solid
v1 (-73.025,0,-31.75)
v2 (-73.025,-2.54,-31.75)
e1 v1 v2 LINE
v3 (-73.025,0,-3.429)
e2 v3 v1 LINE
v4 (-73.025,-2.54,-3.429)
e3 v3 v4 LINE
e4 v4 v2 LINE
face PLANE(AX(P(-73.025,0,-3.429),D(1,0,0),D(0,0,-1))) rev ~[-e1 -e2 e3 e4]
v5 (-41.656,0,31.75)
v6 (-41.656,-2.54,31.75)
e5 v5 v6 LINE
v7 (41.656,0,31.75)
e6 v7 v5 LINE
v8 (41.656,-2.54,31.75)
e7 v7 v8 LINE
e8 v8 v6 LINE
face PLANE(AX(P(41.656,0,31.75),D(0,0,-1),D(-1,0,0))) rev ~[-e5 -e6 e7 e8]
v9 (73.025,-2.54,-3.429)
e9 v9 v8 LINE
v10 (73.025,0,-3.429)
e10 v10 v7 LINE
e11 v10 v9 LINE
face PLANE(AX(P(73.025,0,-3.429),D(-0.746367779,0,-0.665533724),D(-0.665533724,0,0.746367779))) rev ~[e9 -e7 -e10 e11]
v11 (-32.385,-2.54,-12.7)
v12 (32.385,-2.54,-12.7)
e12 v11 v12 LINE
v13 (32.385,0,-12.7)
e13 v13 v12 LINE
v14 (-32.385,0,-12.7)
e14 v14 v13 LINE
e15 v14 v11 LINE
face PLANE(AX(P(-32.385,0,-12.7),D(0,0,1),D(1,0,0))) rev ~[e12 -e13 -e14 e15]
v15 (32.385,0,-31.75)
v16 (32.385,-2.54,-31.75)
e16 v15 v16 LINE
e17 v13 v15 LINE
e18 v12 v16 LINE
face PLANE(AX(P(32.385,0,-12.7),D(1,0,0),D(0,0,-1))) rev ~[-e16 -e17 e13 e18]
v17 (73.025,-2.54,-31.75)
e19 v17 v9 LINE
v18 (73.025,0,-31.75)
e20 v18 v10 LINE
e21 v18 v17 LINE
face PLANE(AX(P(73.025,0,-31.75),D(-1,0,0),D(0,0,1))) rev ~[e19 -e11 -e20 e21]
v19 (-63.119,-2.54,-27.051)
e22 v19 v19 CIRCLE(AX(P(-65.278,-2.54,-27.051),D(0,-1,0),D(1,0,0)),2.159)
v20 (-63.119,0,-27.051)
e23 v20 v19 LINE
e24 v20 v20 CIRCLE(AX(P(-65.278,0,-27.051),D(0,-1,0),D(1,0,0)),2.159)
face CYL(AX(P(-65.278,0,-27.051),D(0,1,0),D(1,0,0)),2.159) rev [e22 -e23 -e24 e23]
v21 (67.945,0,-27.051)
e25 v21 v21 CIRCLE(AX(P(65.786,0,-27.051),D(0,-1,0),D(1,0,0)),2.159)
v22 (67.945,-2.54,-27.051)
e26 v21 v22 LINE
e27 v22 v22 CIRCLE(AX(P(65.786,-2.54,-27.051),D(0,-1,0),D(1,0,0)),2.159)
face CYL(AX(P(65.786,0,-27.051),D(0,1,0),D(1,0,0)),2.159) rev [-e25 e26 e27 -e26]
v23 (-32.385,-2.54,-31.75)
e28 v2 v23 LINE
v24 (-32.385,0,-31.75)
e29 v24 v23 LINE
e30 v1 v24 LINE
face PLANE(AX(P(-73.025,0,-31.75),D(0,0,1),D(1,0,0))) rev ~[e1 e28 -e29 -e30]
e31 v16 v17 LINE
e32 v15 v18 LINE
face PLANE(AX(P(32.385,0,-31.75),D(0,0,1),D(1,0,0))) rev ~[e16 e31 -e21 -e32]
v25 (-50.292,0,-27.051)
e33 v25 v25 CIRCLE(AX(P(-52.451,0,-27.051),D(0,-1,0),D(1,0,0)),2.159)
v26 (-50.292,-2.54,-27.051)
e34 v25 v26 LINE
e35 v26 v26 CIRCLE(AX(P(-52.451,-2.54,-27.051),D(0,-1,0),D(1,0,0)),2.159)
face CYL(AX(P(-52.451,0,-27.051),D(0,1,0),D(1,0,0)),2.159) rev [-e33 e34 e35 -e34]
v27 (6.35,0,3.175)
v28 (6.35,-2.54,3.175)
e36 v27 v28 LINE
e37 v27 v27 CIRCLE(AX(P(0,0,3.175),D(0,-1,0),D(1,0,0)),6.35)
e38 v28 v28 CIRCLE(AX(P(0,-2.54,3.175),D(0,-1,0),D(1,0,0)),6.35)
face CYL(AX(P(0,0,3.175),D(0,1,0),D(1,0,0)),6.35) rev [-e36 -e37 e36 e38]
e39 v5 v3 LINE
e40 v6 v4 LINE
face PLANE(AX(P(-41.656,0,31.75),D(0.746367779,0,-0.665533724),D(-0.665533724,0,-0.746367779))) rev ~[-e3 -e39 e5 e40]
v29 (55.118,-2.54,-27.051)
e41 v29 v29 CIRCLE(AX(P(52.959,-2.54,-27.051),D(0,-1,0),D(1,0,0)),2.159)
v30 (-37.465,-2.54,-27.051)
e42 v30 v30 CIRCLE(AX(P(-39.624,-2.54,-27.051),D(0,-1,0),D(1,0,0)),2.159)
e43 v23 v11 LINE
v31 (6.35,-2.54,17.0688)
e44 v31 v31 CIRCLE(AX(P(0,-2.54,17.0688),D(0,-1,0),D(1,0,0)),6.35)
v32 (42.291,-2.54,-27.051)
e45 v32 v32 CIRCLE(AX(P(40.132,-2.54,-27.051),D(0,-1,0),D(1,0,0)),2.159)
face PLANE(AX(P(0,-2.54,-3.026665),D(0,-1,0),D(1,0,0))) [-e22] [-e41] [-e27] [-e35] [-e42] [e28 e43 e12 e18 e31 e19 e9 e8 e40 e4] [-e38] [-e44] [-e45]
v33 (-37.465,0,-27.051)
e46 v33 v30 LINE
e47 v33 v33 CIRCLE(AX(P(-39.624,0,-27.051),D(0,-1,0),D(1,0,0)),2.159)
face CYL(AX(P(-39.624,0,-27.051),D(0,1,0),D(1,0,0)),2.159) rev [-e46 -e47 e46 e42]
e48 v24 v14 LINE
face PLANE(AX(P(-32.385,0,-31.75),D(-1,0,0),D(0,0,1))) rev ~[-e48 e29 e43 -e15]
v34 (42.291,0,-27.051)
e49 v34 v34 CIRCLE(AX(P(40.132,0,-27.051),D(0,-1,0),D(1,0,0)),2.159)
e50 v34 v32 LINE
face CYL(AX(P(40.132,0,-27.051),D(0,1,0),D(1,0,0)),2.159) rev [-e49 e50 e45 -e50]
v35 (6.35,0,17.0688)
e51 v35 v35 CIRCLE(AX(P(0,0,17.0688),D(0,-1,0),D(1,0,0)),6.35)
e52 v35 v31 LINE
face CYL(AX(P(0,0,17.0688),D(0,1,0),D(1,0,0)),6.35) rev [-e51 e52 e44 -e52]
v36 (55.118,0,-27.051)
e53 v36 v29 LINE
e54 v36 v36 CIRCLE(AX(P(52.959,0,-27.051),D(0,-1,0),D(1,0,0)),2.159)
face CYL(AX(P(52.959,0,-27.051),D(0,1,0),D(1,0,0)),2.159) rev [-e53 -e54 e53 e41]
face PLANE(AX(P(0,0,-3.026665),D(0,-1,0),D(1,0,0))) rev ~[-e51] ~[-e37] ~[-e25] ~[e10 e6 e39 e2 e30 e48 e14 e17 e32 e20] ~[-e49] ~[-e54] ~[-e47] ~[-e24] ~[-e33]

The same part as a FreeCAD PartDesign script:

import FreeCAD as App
import Part
import Sketcher
from FreeCAD import Vector
Q = App.Units.Quantity


def add_polygon(sketch, points):
    """Adds a closed chain of lines whose ends are joined by coincident constraints."""
    first, n = sketch.GeometryCount, len(points)
    for a, b in zip(points, points[1:] + points[:1]):
        sketch.addGeometry(Part.LineSegment(App.Vector(*a, 0), App.Vector(*b, 0)), False)
    for i in range(n):
        sketch.addConstraint(Sketcher.Constraint("Coincident", first + i, 2, first + (i + 1) % n, 1))

doc = App.newDocument("Part")
params = doc.addObject("Spreadsheet::Sheet", "Params")
for row, (alias, value) in enumerate([
    ("sketch1_diameter", "0.5 in"),
    ("sketch1_diameter2", "0.17 in"),
    ("sketch1_width", "1.6 in"),
    ("sketch1_width2", "3.28 in"),
    ("sketch1_width3", "2.55 in"),
    ("pad1_length", "0.1 in"),
], start=1):
    params.set(f"A{row}", alias)
    params.set(f"B{row}", "=" + value)
    params.setAlias(f"B{row}", alias)

body = doc.addObject("PartDesign::Body", "Body")

sketch1 = body.newObject("Sketcher::SketchObject", "Sketch")
sketch1.AttachmentSupport = (doc.getObject("XZ_Plane"), [""])
sketch1.MapMode = "FlatFace"
add_polygon(sketch1, [(73, -3.4), (41.7, 31.8), (-41.7, 31.8), (-73, -3.4), (-73, -31.8), (-32.4, -31.8), (-32.4, -12.7), (32.4, -12.7), (32.4, -31.8), (73, -31.8)])
sketch1.addGeometry(Part.Circle(Vector(-65.3, -27.1, 0), Vector(0, 0, 1), 2.2), False)
sketch1.addGeometry(Part.Circle(Vector(-52.5, -27.1, 0), Vector(0, 0, 1), 2.2), False)
sketch1.addGeometry(Part.Circle(Vector(-39.6, -27.1, 0), Vector(0, 0, 1), 2.2), False)
sketch1.addGeometry(Part.Circle(Vector(40.1, -27.1, 0), Vector(0, 0, 1), 2.2), False)
sketch1.addGeometry(Part.Circle(Vector(53, -27.1, 0), Vector(0, 0, 1), 2.2), False)
sketch1.addGeometry(Part.Circle(Vector(65.8, -27.1, 0), Vector(0, 0, 1), 2.2), False)
sketch1.addGeometry(Part.Circle(Vector(0, 3.2, 0), Vector(0, 0, 1), 6.3), False)
sketch1.addGeometry(Part.Circle(Vector(0, 17.1, 0), Vector(0, 0, 1), 6.3), False)
sketch1.addConstraint(Sketcher.Constraint("Horizontal", 1))
sketch1.addConstraint(Sketcher.Constraint("Vertical", 3))
sketch1.addConstraint(Sketcher.Constraint("Horizontal", 4))
sketch1.addConstraint(Sketcher.Constraint("Vertical", 5))
sketch1.addConstraint(Sketcher.Constraint("Horizontal", 6))
sketch1.addConstraint(Sketcher.Constraint("Vertical", 7))
sketch1.addConstraint(Sketcher.Constraint("Horizontal", 8))
sketch1.addConstraint(Sketcher.Constraint("Vertical", 9))
sketch1.addConstraint(Sketcher.Constraint("Equal", 10, 11))
sketch1.addConstraint(Sketcher.Constraint("Equal", 11, 12))
sketch1.addConstraint(Sketcher.Constraint("Equal", 12, 13))
sketch1.addConstraint(Sketcher.Constraint("Equal", 13, 14))
sketch1.addConstraint(Sketcher.Constraint("Equal", 14, 15))
sketch1.addConstraint(Sketcher.Constraint("Equal", 16, 17))
sketch1.addConstraint(Sketcher.Constraint("Symmetric", 4, 2, 7, 2, -2))
sketch1.addConstraint(Sketcher.Constraint("Symmetric", 2, 2, 9, 2, -2))
sketch1.addConstraint(Sketcher.Constraint("PointOnObject", 16, 3, -2))
sketch1.addConstraint(Sketcher.Constraint("PointOnObject", 17, 3, -2))
sketch1.addConstraint(Sketcher.Constraint("Horizontal", 10, 3, 11, 3))
sketch1.addConstraint(Sketcher.Constraint("Horizontal", 11, 3, 12, 3))
sketch1.addConstraint(Sketcher.Constraint("Horizontal", 12, 3, 13, 3))
sketch1.addConstraint(Sketcher.Constraint("Horizontal", 13, 3, 14, 3))
sketch1.addConstraint(Sketcher.Constraint("Horizontal", 14, 3, 15, 3))
sketch1.addConstraint(Sketcher.Constraint("Equal", 0, 2))
sketch1.addConstraint(Sketcher.Constraint("Diameter", 16, Q("0.5 in")))
sketch1.addConstraint(Sketcher.Constraint("Diameter", 10, Q("0.17 in")))
sketch1.addConstraint(Sketcher.Constraint("DistanceX", 4, 1, 4, 2, Q("1.6 in")))
sketch1.addConstraint(Sketcher.Constraint("DistanceX", 1, 2, 1, 1, Q("3.28 in")))
sketch1.addConstraint(Sketcher.Constraint("DistanceX", 6, 1, 6, 2, Q("2.55 in")))
sketch1.addConstraint(Sketcher.Constraint("DistanceY", 5, 1, 5, 2, Q("0.75 in")))
sketch1.addConstraint(Sketcher.Constraint("DistanceY", 5, 2, -1, 1, Q("0.5 in")))
sketch1.addConstraint(Sketcher.Constraint("DistanceY", 3, 2, 1, 2, Q("2.5 in")))
sketch1.addConstraint(Sketcher.Constraint("DistanceY", 3, 2, 3, 1, Q("1.115 in")))
sketch1.addConstraint(Sketcher.Constraint("DistanceX", 10, 3, -1, 1, Q("2.57 in")))
sketch1.addConstraint(Sketcher.Constraint("DistanceX", 12, 3, -1, 1, Q("1.56 in")))
sketch1.addConstraint(Sketcher.Constraint("DistanceX", -1, 1, 13, 3, Q("1.58 in")))
sketch1.addConstraint(Sketcher.Constraint("DistanceX", -1, 1, 15, 3, Q("2.59 in")))
sketch1.addConstraint(Sketcher.Constraint("DistanceX", 11, 3, 14, 3, Q("4.15 in")))
sketch1.addConstraint(Sketcher.Constraint("DistanceY", 12, 3, 16, 3, Q("1.19 in")))
sketch1.addConstraint(Sketcher.Constraint("DistanceY", 10, 3, 2, 2, Q("0.93 in")))
sketch1.addConstraint(Sketcher.Constraint("DistanceX", 2, 2, 11, 3, Q("0.81 in")))
sketch1.addConstraint(Sketcher.Constraint("DistanceY", -1, 1, 17, 3, Q("0.672 in")))
sketch1.setExpression("Constraints[34]", "Params.sketch1_diameter")
sketch1.setExpression("Constraints[35]", "Params.sketch1_diameter2")
sketch1.setExpression("Constraints[36]", "Params.sketch1_width")
sketch1.setExpression("Constraints[37]", "Params.sketch1_width2")
sketch1.setExpression("Constraints[38]", "Params.sketch1_width3")
pad1 = body.newObject("PartDesign::Pad", "Pad")
pad1.Profile = sketch1
pad1.setExpression("Length", "Params.pad1_length")

doc.recompute()
